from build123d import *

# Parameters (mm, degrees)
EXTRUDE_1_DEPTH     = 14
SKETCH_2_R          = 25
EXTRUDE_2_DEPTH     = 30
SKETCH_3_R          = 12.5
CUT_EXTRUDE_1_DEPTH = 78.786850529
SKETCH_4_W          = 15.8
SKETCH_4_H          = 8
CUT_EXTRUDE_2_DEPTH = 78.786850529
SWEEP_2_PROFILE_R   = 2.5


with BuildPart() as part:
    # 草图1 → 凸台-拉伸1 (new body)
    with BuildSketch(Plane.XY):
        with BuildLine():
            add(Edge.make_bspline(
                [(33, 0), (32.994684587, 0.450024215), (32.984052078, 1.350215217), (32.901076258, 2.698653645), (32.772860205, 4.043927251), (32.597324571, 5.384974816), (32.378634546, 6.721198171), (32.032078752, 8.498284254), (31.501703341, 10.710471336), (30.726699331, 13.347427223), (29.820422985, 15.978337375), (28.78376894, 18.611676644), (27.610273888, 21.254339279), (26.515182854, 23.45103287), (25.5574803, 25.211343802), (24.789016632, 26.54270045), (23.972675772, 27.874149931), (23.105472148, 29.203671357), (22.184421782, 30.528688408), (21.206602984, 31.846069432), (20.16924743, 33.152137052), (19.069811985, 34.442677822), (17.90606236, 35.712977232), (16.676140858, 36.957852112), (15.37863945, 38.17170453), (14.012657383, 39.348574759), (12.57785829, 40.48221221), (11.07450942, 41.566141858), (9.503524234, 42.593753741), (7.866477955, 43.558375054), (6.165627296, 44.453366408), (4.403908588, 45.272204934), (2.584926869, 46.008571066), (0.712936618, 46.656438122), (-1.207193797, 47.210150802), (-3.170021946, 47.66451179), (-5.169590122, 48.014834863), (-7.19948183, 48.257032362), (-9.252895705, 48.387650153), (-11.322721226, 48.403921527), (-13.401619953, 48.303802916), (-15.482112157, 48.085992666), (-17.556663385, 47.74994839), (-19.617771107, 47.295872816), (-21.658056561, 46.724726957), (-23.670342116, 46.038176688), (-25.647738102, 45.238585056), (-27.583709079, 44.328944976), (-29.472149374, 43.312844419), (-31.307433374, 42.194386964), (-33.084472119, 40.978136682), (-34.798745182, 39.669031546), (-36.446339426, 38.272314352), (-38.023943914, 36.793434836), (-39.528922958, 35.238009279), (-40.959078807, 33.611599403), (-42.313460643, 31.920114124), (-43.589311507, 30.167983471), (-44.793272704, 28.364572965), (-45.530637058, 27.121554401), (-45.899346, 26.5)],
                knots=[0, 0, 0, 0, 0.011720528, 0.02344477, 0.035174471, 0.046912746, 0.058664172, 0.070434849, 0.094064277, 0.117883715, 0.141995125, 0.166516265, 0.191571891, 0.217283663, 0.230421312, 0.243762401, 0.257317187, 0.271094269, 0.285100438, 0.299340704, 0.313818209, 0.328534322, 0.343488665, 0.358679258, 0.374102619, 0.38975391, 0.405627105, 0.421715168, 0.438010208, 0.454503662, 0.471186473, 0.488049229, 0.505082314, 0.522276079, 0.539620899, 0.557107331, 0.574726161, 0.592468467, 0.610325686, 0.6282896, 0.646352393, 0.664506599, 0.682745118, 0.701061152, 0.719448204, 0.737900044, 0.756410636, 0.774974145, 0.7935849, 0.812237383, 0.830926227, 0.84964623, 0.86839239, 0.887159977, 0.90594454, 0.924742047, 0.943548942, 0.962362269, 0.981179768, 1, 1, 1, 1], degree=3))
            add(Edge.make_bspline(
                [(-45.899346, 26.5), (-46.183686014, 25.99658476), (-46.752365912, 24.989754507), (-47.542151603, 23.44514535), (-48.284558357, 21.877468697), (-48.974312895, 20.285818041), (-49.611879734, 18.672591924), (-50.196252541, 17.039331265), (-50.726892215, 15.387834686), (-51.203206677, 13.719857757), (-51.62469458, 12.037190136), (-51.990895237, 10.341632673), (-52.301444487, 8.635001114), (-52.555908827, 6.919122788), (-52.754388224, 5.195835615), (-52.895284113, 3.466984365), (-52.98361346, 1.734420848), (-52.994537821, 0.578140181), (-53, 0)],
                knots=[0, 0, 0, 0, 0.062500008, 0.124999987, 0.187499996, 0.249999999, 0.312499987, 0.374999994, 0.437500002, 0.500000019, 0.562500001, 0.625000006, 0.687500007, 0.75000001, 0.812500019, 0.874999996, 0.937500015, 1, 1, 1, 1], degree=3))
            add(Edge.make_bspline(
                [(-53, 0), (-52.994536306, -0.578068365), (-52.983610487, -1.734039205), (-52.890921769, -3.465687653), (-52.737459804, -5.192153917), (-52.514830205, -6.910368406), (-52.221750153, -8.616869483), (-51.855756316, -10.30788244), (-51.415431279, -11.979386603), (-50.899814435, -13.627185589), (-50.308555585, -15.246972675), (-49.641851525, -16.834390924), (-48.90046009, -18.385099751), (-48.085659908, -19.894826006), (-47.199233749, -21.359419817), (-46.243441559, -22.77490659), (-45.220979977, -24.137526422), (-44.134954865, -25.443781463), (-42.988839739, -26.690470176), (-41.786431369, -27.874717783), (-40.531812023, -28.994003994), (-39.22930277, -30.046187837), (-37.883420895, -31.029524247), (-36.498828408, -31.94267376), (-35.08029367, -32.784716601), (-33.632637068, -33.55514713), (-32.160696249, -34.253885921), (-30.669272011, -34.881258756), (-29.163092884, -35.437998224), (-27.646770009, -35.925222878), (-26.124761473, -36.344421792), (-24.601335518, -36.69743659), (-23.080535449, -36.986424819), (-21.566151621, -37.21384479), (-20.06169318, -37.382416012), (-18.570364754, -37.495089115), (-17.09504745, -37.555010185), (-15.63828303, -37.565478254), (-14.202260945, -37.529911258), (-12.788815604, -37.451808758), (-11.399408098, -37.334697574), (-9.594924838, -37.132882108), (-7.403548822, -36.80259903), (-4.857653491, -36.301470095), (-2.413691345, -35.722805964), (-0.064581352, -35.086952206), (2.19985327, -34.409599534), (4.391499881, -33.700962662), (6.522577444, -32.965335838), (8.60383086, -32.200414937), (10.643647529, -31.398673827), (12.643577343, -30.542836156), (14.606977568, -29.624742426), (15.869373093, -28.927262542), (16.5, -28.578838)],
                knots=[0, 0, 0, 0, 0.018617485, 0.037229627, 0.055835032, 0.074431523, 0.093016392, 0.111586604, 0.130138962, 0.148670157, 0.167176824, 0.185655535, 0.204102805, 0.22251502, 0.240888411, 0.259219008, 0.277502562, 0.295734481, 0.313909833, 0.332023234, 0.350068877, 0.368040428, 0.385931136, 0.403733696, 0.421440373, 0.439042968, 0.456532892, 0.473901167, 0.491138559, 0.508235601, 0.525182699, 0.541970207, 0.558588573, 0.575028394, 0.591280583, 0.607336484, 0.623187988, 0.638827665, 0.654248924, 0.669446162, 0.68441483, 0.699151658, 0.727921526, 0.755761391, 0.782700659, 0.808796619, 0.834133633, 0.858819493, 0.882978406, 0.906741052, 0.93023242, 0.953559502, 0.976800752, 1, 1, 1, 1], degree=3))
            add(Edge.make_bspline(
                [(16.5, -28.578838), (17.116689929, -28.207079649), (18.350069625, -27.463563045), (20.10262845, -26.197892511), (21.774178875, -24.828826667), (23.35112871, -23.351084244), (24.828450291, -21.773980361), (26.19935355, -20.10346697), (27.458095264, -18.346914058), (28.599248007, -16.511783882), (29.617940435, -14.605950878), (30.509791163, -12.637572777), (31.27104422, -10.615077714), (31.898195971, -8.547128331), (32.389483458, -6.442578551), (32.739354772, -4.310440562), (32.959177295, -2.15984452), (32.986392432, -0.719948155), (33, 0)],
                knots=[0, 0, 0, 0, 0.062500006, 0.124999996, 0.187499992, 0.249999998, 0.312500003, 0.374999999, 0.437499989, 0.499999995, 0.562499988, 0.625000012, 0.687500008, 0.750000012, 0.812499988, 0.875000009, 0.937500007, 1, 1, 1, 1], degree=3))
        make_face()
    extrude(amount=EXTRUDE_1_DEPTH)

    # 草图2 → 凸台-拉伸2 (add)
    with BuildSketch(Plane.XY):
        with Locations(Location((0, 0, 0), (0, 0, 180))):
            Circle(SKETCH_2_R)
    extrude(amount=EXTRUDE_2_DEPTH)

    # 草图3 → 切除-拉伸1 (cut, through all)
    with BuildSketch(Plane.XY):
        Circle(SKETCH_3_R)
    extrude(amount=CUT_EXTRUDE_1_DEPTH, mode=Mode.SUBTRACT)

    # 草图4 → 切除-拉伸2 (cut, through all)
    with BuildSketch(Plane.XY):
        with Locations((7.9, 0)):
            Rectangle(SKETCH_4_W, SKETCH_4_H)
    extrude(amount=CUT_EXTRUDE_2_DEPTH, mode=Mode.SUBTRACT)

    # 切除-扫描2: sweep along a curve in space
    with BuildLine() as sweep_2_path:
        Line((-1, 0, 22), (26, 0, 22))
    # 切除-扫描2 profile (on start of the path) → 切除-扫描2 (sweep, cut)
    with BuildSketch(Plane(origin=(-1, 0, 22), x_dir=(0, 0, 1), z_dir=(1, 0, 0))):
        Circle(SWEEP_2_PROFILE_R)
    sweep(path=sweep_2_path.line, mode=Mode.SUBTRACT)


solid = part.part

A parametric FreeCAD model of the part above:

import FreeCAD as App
import Part
import Sketcher

V = App.Vector

doc = App.newDocument("Part")
body = doc.addObject("PartDesign::Body", "Body")

# Sketch on XY plane
sketch1 = body.newObject("Sketcher::SketchObject", "Sketch")
sketch1.AttachmentSupport = (doc.getObject("XY_Plane"), [""])
sketch1.MapMode = "FlatFace"
sketch1.addGeometry(Part.BSplineCurve([V(33, 0, 0), V(32.994685, 0.450024, 0), V(32.984052, 1.350215, 0), V(32.901076, 2.698654, 0), V(32.77286, 4.043927, 0), V(32.597325, 5.384975, 0), V(32.378635, 6.721198, 0), V(32.032079, 8.498284, 0), V(31.501703, 10.710471, 0), V(30.726699, 13.347427, 0), V(29.820423, 15.978337, 0), V(28.783769, 18.611677, 0), V(27.610274, 21.254339, 0), V(26.515183, 23.451033, 0), V(25.55748, 25.211344, 0), V(24.789017, 26.5427, 0), V(23.972676, 27.87415, 0), V(23.105472, 29.203671, 0), V(22.184422, 30.528688, 0), V(21.206603, 31.846069, 0), V(20.169247, 33.152137, 0), V(19.069812, 34.442678, 0), V(17.906062, 35.712977, 0), V(16.676141, 36.957852, 0), V(15.378639, 38.171705, 0), V(14.012657, 39.348575, 0), V(12.577858, 40.482212, 0), V(11.074509, 41.566142, 0), V(9.503524, 42.593754, 0), V(7.866478, 43.558375, 0), V(6.165627, 44.453366, 0), V(4.403909, 45.272205, 0), V(2.584927, 46.008571, 0), V(0.712937, 46.656438, 0), V(-1.207194, 47.210151, 0), V(-3.170022, 47.664512, 0), V(-5.16959, 48.014835, 0), V(-7.199482, 48.257032, 0), V(-9.252896, 48.38765, 0), V(-11.322721, 48.403922, 0), V(-13.40162, 48.303803, 0), V(-15.482112, 48.085993, 0), V(-17.556663, 47.749948, 0), V(-19.617771, 47.295873, 0), V(-21.658057, 46.724727, 0), V(-23.670342, 46.038177, 0), V(-25.647738, 45.238585, 0), V(-27.583709, 44.328945, 0), V(-29.472149, 43.312844, 0), V(-31.307433, 42.194387, 0), V(-33.084472, 40.978137, 0), V(-34.798745, 39.669032, 0), V(-36.446339, 38.272314, 0), V(-38.023944, 36.793435, 0), V(-39.528923, 35.238009, 0), V(-40.959079, 33.611599, 0), V(-42.313461, 31.920114, 0), V(-43.589312, 30.167983, 0), V(-44.793273, 28.364573, 0), V(-45.530637, 27.121554, 0), V(-45.899346, 26.5, 0)], [4, 1, 1, 1, 1, 1, 1, 1, 1, 1, 1, 1, 1, 1, 1, 1, 1, 1, 1, 1, 1, 1, 1, 1, 1, 1, 1, 1, 1, 1, 1, 1, 1, 1, 1, 1, 1, 1, 1, 1, 1, 1, 1, 1, 1, 1, 1, 1, 1, 1, 1, 1, 1, 1, 1, 1, 1, 1, 4], [0, 0.011720528, 0.02344477, 0.035174471, 0.046912746, 0.058664172, 0.070434849, 0.094064277, 0.117883715, 0.141995125, 0.166516265, 0.191571891, 0.217283663, 0.230421312, 0.243762401, 0.257317187, 0.271094269, 0.285100438, 0.299340704, 0.313818209, 0.328534322, 0.343488665, 0.358679258, 0.374102619, 0.38975391, 0.405627105, 0.421715168, 0.438010208, 0.454503662, 0.471186473, 0.488049229, 0.505082314, 0.522276079, 0.539620899, 0.557107331, 0.574726161, 0.592468467, 0.610325686, 0.6282896, 0.646352393, 0.664506599, 0.682745118, 0.701061152, 0.719448204, 0.737900044, 0.756410636, 0.774974145, 0.7935849, 0.812237383, 0.830926227, 0.84964623, 0.86839239, 0.887159977, 0.90594454, 0.924742047, 0.943548942, 0.962362269, 0.981179768, 1], False, 3, [1, 1, 1, 1, 1, 1, 1, 1, 1, 1, 1, 1, 1, 1, 1, 1, 1, 1, 1, 1, 1, 1, 1, 1, 1, 1, 1, 1, 1, 1, 1, 1, 1, 1, 1, 1, 1, 1, 1, 1, 1, 1, 1, 1, 1, 1, 1, 1, 1, 1, 1, 1, 1, 1, 1, 1, 1, 1, 1, 1, 1], False), False)
sketch1.addGeometry(Part.BSplineCurve([V(-45.899346, 26.5, 0), V(-46.183686, 25.996585, 0), V(-46.752366, 24.989755, 0), V(-47.542152, 23.445145, 0), V(-48.284558, 21.877469, 0), V(-48.974313, 20.285818, 0), V(-49.61188, 18.672592, 0), V(-50.196253, 17.039331, 0), V(-50.726892, 15.387835, 0), V(-51.203207, 13.719858, 0), V(-51.624695, 12.03719, 0), V(-51.990895, 10.341633, 0), V(-52.301444, 8.635001, 0), V(-52.555909, 6.919123, 0), V(-52.754388, 5.195836, 0), V(-52.895284, 3.466984, 0), V(-52.983613, 1.734421, 0), V(-52.994538, 0.57814, 0), V(-53, 0, 0)], [4, 1, 1, 1, 1, 1, 1, 1, 1, 1, 1, 1, 1, 1, 1, 1, 4], [0, 0.062500008, 0.124999987, 0.187499996, 0.249999999, 0.312499987, 0.374999994, 0.437500002, 0.500000019, 0.562500001, 0.625000006, 0.687500007, 0.75000001, 0.812500019, 0.874999996, 0.937500015, 1], False, 3, [1, 1, 1, 1, 1, 1, 1, 1, 1, 1, 1, 1, 1, 1, 1, 1, 1, 1, 1], False), False)
sketch1.addGeometry(Part.BSplineCurve([V(-53, 0, 0), V(-52.994536, -0.578068, 0), V(-52.98361, -1.734039, 0), V(-52.890922, -3.465688, 0), V(-52.73746, -5.192154, 0), V(-52.51483, -6.910368, 0), V(-52.22175, -8.616869, 0), V(-51.855756, -10.307882, 0), V(-51.415431, -11.979387, 0), V(-50.899814, -13.627186, 0), V(-50.308556, -15.246973, 0), V(-49.641852, -16.834391, 0), V(-48.90046, -18.3851, 0), V(-48.08566, -19.894826, 0), V(-47.199234, -21.35942, 0), V(-46.243442, -22.774907, 0), V(-45.22098, -24.137526, 0), V(-44.134955, -25.443781, 0), V(-42.98884, -26.69047, 0), V(-41.786431, -27.874718, 0), V(-40.531812, -28.994004, 0), V(-39.229303, -30.046188, 0), V(-37.883421, -31.029524, 0), V(-36.498828, -31.942674, 0), V(-35.080294, -32.784717, 0), V(-33.632637, -33.555147, 0), V(-32.160696, -34.253886, 0), V(-30.669272, -34.881259, 0), V(-29.163093, -35.437998, 0), V(-27.64677, -35.925223, 0), V(-26.124761, -36.344422, 0), V(-24.601336, -36.697437, 0), V(-23.080535, -36.986425, 0), V(-21.566152, -37.213845, 0), V(-20.061693, -37.382416, 0), V(-18.570365, -37.495089, 0), V(-17.095047, -37.55501, 0), V(-15.638283, -37.565478, 0), V(-14.202261, -37.529911, 0), V(-12.788816, -37.451809, 0), V(-11.399408, -37.334698, 0), V(-9.594925, -37.132882, 0), V(-7.403549, -36.802599, 0), V(-4.857653, -36.30147, 0), V(-2.413691, -35.722806, 0), V(-0.064581, -35.086952, 0), V(2.199853, -34.4096, 0), V(4.3915, -33.700963, 0), V(6.522577, -32.965336, 0), V(8.603831, -32.200415, 0), V(10.643648, -31.398674, 0), V(12.643577, -30.542836, 0), V(14.606978, -29.624742, 0), V(15.869373, -28.927263, 0), V(16.5, -28.578838, 0)], [4, 1, 1, 1, 1, 1, 1, 1, 1, 1, 1, 1, 1, 1, 1, 1, 1, 1, 1, 1, 1, 1, 1, 1, 1, 1, 1, 1, 1, 1, 1, 1, 1, 1, 1, 1, 1, 1, 1, 1, 1, 1, 1, 1, 1, 1, 1, 1, 1, 1, 1, 1, 4], [0, 0.018617485, 0.037229627, 0.055835032, 0.074431523, 0.093016392, 0.111586604, 0.130138962, 0.148670157, 0.167176824, 0.185655535, 0.204102805, 0.22251502, 0.240888411, 0.259219008, 0.277502562, 0.295734481, 0.313909833, 0.332023234, 0.350068877, 0.368040428, 0.385931136, 0.403733696, 0.421440373, 0.439042968, 0.456532892, 0.473901167, 0.491138559, 0.508235601, 0.525182699, 0.541970207, 0.558588573, 0.575028394, 0.591280583, 0.607336484, 0.623187988, 0.638827665, 0.654248924, 0.669446162, 0.68441483, 0.699151658, 0.727921526, 0.755761391, 0.782700659, 0.808796619, 0.834133633, 0.858819493, 0.882978406, 0.906741052, 0.93023242, 0.953559502, 0.976800752, 1], False, 3, [1, 1, 1, 1, 1, 1, 1, 1, 1, 1, 1, 1, 1, 1, 1, 1, 1, 1, 1, 1, 1, 1, 1, 1, 1, 1, 1, 1, 1, 1, 1, 1, 1, 1, 1, 1, 1, 1, 1, 1, 1, 1, 1, 1, 1, 1, 1, 1, 1, 1, 1, 1, 1, 1, 1], False), False)
sketch1.addGeometry(Part.BSplineCurve([V(16.5, -28.578838, 0), V(17.11669, -28.20708, 0), V(18.35007, -27.463563, 0), V(20.102628, -26.197893, 0), V(21.774179, -24.828827, 0), V(23.351129, -23.351084, 0), V(24.82845, -21.77398, 0), V(26.199354, -20.103467, 0), V(27.458095, -18.346914, 0), V(28.599248, -16.511784, 0), V(29.61794, -14.605951, 0), V(30.509791, -12.637573, 0), V(31.271044, -10.615078, 0), V(31.898196, -8.547128, 0), V(32.389483, -6.442579, 0), V(32.739355, -4.310441, 0), V(32.959177, -2.159845, 0), V(32.986392, -0.719948, 0), V(33, 0, 0)], [4, 1, 1, 1, 1, 1, 1, 1, 1, 1, 1, 1, 1, 1, 1, 1, 4], [0, 0.062500006, 0.124999996, 0.187499992, 0.249999998, 0.312500003, 0.374999999, 0.437499989, 0.499999995, 0.562499988, 0.625000012, 0.687500008, 0.750000012, 0.812499988, 0.875000009, 0.937500007, 1], False, 3, [1, 1, 1, 1, 1, 1, 1, 1, 1, 1, 1, 1, 1, 1, 1, 1, 1, 1, 1], False), False)
sketch1.addConstraint(Sketcher.Constraint("Block", 0))
sketch1.addConstraint(Sketcher.Constraint("Block", 1))
sketch1.addConstraint(Sketcher.Constraint("Block", 2))
sketch1.addConstraint(Sketcher.Constraint("Block", 3))
pad1 = body.newObject("PartDesign::Pad", "Pad")
pad1.Profile = sketch1
pad1.Length = 14

# Sketch on XY plane
sketch2 = body.newObject("Sketcher::SketchObject", "Sketch001")
sketch2.AttachmentSupport = (doc.getObject("XY_Plane"), [""])
sketch2.MapMode = "FlatFace"
sketch2.addGeometry(Part.Circle(V(0, 0, 0), V(0, 0, 1), 25), False)
sketch2.addConstraint(Sketcher.Constraint("Coincident", 0, 3, -1, 1))
sketch2.addConstraint(Sketcher.Constraint("Diameter", 0, 50.0))
pad2 = body.newObject("PartDesign::Pad", "Pad001")
pad2.Profile = sketch2
pad2.Length = 30

# Sketch on XY plane
sketch3 = body.newObject("Sketcher::SketchObject", "Sketch002")
sketch3.AttachmentSupport = (doc.getObject("XY_Plane"), [""])
sketch3.MapMode = "FlatFace"
sketch3.addGeometry(Part.Circle(V(0, 0, 0), V(0, 0, 1), 12.5), False)
sketch3.addConstraint(Sketcher.Constraint("Coincident", 0, 3, -1, 1))
sketch3.addConstraint(Sketcher.Constraint("Diameter", 0, 25.0))
pocket1 = body.newObject("PartDesign::Pocket", "Pocket")
pocket1.Profile = sketch3
pocket1.Type = "ThroughAll"
pocket1.Reversed = True

# Sketch on XY plane
sketch4 = body.newObject("Sketcher::SketchObject", "Sketch003")
sketch4.AttachmentSupport = (doc.getObject("XY_Plane"), [""])
sketch4.MapMode = "FlatFace"
sketch4.addGeometry(Part.LineSegment(V(0, 4, 0), V(0, -4, 0)), False)
sketch4.addGeometry(Part.LineSegment(V(0, -4, 0), V(15.8, -4, 0)), False)
sketch4.addGeometry(Part.LineSegment(V(15.8, -4, 0), V(15.8, 4, 0)), False)
sketch4.addGeometry(Part.LineSegment(V(15.8, 4, 0), V(0, 4, 0)), False)
sketch4.addConstraint(Sketcher.Constraint("Coincident", 0, 2, 1, 1))
sketch4.addConstraint(Sketcher.Constraint("Coincident", 1, 2, 2, 1))
sketch4.addConstraint(Sketcher.Constraint("Coincident", 2, 2, 3, 1))
sketch4.addConstraint(Sketcher.Constraint("Coincident", 3, 2, 0, 1))
sketch4.addConstraint(Sketcher.Constraint("Vertical", 0))
sketch4.addConstraint(Sketcher.Constraint("Horizontal", 1))
sketch4.addConstraint(Sketcher.Constraint("Vertical", 2))
sketch4.addConstraint(Sketcher.Constraint("Horizontal", 3))
sketch4.addConstraint(Sketcher.Constraint("Symmetric", 0, 2, 3, 2, -1, 1))
sketch4.addConstraint(Sketcher.Constraint("DistanceY", 0, 2, 0, 1, 8.0))
sketch4.addConstraint(Sketcher.Constraint("DistanceX", 1, 1, 1, 2, 15.8))
pocket2 = body.newObject("PartDesign::Pocket", "Pocket001")
pocket2.Profile = sketch4
pocket2.Type = "ThroughAll"
pocket2.Reversed = True

# Sketch on YZ plane
sketch5 = body.newObject("Sketcher::SketchObject", "Sketch004")
sketch5.AttachmentSupport = (doc.getObject("YZ_Plane"), [""])
sketch5.MapMode = "FlatFace"
sketch5.AttachmentOffset = App.Placement(V(0, 0, -1), App.Rotation())
sketch5.addGeometry(Part.Circle(V(0, 22, 0), V(0, 0, 1), 2.5), False)
sketch5.addConstraint(Sketcher.Constraint("PointOnObject", 0, 3, -2))
sketch5.addConstraint(Sketcher.Constraint("Diameter", 0, 5.0))
sketch5.addConstraint(Sketcher.Constraint("DistanceY", -1, 1, 0, 3, 22.0))

# Sketch on XY plane
sketch6 = body.newObject("Sketcher::SketchObject", "Sketch005")
sketch6.AttachmentSupport = (doc.getObject("XY_Plane"), [""])
sketch6.MapMode = "FlatFace"
sketch6.AttachmentOffset = App.Placement(V(0, 0, 22), App.Rotation())
sketch6.addGeometry(Part.LineSegment(V(-1, 0, 0), V(26, 0, 0)), False)
sketch6.addConstraint(Sketcher.Constraint("Horizontal", 0))
sketch6.addConstraint(Sketcher.Constraint("PointOnObject", 0, 1, -1))
sketch6.addConstraint(Sketcher.Constraint("DistanceX", 0, 1, 0, 2, 27.0))
sketch6.addConstraint(Sketcher.Constraint("DistanceX", 0, 1, -1, 1, 1.0))
doc.recompute()

subtractivepipe = body.newObject("PartDesign::SubtractivePipe", "SubtractivePipe")
subtractivepipe.Profile = sketch5
subtractivepipe.Spine = (sketch6, ["Edge1"])

doc.recompute()
